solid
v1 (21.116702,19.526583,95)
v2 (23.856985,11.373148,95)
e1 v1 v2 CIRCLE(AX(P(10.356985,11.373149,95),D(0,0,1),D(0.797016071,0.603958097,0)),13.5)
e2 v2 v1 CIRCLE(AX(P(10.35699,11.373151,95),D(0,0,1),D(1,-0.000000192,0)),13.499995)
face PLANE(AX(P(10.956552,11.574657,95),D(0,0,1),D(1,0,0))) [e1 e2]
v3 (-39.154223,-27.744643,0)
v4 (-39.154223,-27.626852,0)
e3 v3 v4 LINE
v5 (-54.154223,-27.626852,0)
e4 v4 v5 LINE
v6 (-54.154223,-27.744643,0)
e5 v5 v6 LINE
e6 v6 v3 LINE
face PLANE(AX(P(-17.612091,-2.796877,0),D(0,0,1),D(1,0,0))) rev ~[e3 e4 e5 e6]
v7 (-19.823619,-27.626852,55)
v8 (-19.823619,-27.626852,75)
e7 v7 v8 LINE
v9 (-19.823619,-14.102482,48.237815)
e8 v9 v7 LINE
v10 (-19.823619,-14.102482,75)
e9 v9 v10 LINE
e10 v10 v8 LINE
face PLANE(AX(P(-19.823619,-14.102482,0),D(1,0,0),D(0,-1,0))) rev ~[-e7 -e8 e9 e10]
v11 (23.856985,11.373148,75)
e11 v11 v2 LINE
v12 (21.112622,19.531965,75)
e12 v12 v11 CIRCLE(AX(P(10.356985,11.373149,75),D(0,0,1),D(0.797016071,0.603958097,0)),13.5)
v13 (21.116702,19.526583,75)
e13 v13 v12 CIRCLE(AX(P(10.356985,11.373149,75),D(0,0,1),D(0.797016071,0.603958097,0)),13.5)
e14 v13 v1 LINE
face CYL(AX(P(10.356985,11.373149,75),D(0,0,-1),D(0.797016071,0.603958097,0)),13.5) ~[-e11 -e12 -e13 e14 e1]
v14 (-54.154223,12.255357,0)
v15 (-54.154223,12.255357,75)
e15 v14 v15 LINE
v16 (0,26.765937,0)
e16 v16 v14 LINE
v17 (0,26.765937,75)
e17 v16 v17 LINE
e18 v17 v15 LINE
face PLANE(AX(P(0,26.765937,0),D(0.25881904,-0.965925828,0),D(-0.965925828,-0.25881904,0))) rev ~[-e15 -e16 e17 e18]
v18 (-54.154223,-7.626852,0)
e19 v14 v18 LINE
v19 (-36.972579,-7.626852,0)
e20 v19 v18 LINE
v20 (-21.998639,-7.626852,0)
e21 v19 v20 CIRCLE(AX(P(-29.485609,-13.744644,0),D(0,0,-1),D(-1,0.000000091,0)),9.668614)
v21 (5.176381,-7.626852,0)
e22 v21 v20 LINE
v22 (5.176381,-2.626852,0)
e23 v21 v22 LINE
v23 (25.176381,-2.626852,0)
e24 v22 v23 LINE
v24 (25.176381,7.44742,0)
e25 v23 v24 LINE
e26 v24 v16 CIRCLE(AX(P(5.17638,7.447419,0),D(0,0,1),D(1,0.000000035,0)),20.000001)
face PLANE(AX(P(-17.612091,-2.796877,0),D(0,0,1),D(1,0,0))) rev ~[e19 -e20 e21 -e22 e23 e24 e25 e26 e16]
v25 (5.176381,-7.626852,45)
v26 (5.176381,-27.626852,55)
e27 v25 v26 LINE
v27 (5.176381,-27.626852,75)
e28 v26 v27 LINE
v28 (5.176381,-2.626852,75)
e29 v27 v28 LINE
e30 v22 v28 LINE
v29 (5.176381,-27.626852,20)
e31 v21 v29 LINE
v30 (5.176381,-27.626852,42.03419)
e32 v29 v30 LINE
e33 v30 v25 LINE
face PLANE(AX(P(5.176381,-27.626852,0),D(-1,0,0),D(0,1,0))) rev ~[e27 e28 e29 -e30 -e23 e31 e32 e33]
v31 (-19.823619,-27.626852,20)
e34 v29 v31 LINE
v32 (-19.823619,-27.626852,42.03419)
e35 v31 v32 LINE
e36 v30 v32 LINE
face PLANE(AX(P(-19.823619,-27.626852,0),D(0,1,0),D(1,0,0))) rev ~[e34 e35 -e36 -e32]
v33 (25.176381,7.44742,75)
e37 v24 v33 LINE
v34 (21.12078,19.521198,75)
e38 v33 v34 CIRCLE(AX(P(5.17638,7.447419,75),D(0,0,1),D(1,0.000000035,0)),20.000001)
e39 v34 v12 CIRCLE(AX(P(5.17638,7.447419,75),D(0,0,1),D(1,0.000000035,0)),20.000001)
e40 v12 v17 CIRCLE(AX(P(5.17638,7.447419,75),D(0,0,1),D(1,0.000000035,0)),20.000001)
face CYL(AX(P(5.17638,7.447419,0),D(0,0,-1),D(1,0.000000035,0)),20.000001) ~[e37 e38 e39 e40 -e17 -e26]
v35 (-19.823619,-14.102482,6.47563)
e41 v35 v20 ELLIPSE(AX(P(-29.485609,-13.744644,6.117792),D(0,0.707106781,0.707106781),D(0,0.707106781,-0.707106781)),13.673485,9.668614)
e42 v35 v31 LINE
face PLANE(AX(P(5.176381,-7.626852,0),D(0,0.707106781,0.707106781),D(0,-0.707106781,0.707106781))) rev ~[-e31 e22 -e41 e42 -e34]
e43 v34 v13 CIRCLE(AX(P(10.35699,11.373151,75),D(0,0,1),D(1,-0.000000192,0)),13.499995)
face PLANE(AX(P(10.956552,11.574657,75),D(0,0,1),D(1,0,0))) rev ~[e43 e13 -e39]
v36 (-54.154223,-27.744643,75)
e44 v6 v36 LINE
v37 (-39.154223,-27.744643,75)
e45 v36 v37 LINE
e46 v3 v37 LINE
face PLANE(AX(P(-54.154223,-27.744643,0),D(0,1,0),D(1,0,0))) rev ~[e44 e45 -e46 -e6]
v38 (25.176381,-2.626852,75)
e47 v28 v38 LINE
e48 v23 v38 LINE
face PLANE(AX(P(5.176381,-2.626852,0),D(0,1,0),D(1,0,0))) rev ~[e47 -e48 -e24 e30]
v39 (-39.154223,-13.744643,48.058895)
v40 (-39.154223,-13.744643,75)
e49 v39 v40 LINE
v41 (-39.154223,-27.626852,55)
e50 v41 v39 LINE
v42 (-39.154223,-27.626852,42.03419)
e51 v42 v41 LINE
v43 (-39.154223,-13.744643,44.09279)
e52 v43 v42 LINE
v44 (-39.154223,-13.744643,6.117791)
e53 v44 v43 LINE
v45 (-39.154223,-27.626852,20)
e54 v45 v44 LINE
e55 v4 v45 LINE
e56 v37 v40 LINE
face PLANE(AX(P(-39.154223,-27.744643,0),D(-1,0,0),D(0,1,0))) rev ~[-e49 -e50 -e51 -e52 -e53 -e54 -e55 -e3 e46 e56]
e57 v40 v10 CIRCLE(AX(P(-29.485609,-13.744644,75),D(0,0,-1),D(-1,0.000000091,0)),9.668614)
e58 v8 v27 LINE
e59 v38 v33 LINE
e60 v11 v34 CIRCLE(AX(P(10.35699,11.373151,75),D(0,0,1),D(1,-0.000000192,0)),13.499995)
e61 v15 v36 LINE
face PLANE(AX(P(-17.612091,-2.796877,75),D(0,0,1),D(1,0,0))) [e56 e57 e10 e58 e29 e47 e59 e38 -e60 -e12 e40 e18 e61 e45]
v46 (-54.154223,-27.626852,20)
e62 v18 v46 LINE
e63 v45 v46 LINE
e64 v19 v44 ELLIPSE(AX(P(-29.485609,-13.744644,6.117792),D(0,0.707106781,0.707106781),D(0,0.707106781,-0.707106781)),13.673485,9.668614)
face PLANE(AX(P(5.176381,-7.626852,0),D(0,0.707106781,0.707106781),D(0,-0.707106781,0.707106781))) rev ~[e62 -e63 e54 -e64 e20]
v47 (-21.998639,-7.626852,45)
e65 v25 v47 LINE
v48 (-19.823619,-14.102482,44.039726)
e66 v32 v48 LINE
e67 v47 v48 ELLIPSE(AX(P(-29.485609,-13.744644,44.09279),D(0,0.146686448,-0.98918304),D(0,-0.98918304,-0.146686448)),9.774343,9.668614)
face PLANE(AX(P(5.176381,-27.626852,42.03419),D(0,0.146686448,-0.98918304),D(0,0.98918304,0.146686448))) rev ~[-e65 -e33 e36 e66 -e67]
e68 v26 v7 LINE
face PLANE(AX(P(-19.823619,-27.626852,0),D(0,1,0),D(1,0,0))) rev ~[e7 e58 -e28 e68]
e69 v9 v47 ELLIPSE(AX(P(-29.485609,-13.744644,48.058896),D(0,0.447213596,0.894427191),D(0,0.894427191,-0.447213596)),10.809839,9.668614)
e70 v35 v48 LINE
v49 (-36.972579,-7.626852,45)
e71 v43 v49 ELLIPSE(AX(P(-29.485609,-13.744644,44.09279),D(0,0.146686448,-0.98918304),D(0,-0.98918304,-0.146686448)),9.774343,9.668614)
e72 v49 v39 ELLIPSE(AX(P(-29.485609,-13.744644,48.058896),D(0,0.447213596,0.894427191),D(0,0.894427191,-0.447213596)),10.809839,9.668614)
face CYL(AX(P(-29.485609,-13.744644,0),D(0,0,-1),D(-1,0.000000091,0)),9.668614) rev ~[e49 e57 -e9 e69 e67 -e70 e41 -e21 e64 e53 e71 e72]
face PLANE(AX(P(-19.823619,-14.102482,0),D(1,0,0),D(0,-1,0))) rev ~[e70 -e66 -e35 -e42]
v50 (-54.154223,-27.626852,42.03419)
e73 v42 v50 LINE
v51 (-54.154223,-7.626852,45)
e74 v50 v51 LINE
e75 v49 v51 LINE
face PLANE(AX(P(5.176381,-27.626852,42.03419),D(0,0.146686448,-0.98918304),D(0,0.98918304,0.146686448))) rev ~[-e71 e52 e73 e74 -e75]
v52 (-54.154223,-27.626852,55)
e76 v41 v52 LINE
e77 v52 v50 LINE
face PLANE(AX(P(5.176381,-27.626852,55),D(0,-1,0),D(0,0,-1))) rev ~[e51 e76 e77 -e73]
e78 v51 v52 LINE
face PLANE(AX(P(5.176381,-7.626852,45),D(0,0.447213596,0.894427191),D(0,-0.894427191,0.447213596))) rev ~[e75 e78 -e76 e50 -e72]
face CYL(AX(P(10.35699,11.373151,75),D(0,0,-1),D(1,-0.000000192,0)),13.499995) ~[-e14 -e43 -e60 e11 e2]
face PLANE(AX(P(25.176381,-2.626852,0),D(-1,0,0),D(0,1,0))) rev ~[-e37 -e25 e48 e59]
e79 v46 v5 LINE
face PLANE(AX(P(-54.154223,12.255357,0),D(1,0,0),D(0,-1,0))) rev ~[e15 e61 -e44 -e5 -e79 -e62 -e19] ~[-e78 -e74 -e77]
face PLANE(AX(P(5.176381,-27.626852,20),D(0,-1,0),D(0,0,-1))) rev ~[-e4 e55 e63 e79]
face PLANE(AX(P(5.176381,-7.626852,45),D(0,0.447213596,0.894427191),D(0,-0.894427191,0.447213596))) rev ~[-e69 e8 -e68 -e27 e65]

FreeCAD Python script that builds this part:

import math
import FreeCAD as App
import Part
import Sketcher
from FreeCAD import Vector
Q = App.Units.Quantity


def add_polygon(sketch, points):
    """Adds a closed chain of lines whose ends are joined by coincident constraints."""
    first, n = sketch.GeometryCount, len(points)
    for a, b in zip(points, points[1:] + points[:1]):
        sketch.addGeometry(Part.LineSegment(App.Vector(*a, 0), App.Vector(*b, 0)), False)
    for i in range(n):
        sketch.addConstraint(Sketcher.Constraint("Coincident", first + i, 2, first + (i + 1) % n, 1))

doc = App.newDocument("Part")
body = doc.addObject("PartDesign::Body", "Body")

sketch1 = body.newObject("Sketcher::SketchObject", "Sketch")
sketch1.AttachmentSupport = (doc.getObject("XY_Plane"), [""])
sketch1.MapMode = "FlatFace"
sketch1.addGeometry([
    Part.LineSegment(Vector(0, 27, 0), Vector(-54, 12, 0)),
    Part.LineSegment(Vector(-54, 12, 0), Vector(-54, -28, 0)),
    Part.LineSegment(Vector(-54, -28, 0), Vector(-39, -28, 0)),
    Part.LineSegment(Vector(-39, -28, 0), Vector(-39, -14, 0)),
    Part.ArcOfCircle(Part.Circle(Vector(-29, -14, 0), Vector(0, 0, 1), 10), math.radians(-2), math.radians(180)),
    Part.LineSegment(Vector(-20, -14, 0), Vector(-20, -28, 0)),
    Part.LineSegment(Vector(-20, -28, 0), Vector(5, -28, 0)),
    Part.LineSegment(Vector(5, -28, 0), Vector(5, -3, 0)),
    Part.LineSegment(Vector(5, -3, 0), Vector(25, -3, 0)),
    Part.LineSegment(Vector(25, -3, 0), Vector(25, 7, 0)),
    Part.ArcOfCircle(Part.Circle(Vector(5, 7, 0), Vector(0, 0, 1), 20), math.radians(0), math.radians(105)),
], False)
sketch1.addConstraint([
    Sketcher.Constraint("Coincident", 0, 2, 1, 1),
    Sketcher.Constraint("Coincident", 1, 2, 2, 1),
    Sketcher.Constraint("Coincident", 2, 2, 3, 1),
    Sketcher.Constraint("Tangent", 3, 2, 4, 2),
    Sketcher.Constraint("Coincident", 4, 1, 5, 1),
    Sketcher.Constraint("Coincident", 5, 2, 6, 1),
    Sketcher.Constraint("Coincident", 6, 2, 7, 1),
    Sketcher.Constraint("Coincident", 7, 2, 8, 1),
    Sketcher.Constraint("Coincident", 8, 2, 9, 1),
    Sketcher.Constraint("Tangent", 9, 2, 10, 1),
    Sketcher.Constraint("Tangent", 10, 2, 0, 1),
    Sketcher.Constraint("Vertical", 1),
    Sketcher.Constraint("Horizontal", 2),
    Sketcher.Constraint("Vertical", 3),
    Sketcher.Constraint("Vertical", 5),
    Sketcher.Constraint("Horizontal", 6),
    Sketcher.Constraint("Vertical", 7),
    Sketcher.Constraint("Horizontal", 8),
    Sketcher.Constraint("Vertical", 9),
    Sketcher.Constraint("PointOnObject", 10, 2, -2),
    Sketcher.Constraint("Vertical", 10, 3, 6, 2),
    Sketcher.Constraint("Equal", 6, 7),
    Sketcher.Constraint("Radius", 10, 20.000001),
    Sketcher.Constraint("DistanceX", 2, 1, 2, 2, 15.0),
    Sketcher.Constraint("DistanceX", 6, 1, 6, 2, 25.0),
    Sketcher.Constraint("DistanceY", 1, 2, 1, 1, 40.0),
    Sketcher.Constraint("DistanceY", 3, 1, 3, 2, 14.0),
    Sketcher.Constraint("Angle", 0, Q("-165 deg")),
    Sketcher.Constraint("Radius", 4, 9.668614),
    Sketcher.Constraint("DistanceY", 5, 2, 5, 1, 13.52437),
    Sketcher.Constraint("DistanceY", 4, 1, 10, 3, 21.549901),
    Sketcher.Constraint("DistanceY", -1, 1, 10, 3, 7.447419),
])
pad1 = body.newObject("PartDesign::Pad", "Pad")
pad1.Profile = sketch1
pad1.Length = 75

sketch2 = body.newObject("Sketcher::SketchObject", "Sketch001")
sketch2.AttachmentSupport = (doc.getObject("XY_Plane"), [""])
sketch2.MapMode = "FlatFace"
sketch2.AttachmentOffset = App.Placement(Vector(0, 0, 75), App.Rotation())
sketch2.addGeometry([
    Part.ArcOfCircle(Part.Circle(Vector(10, 11, 0), Vector(0, 0, 1), 13), math.radians(37), math.radians(360)),
    Part.ArcOfCircle(Part.Circle(Vector(10, 11, 0), Vector(0, 0, 1), 13), math.radians(0), math.radians(37)),
], False)
sketch2.addConstraint([
    Sketcher.Constraint("Tangent", 0, 1, 1, 2),
    Sketcher.Constraint("Coincident", 1, 1, 0, 2),
    Sketcher.Constraint("Horizontal", 0, 3, 1, 1),
    Sketcher.Constraint("Radius", 0, 13.5),
    Sketcher.Constraint("DistanceY", -1, 1, 0, 3, 11.373149),
    Sketcher.Constraint("DistanceX", -1, 1, 1, 3, 10.35699),
    Sketcher.Constraint("DistanceX", 1, 3, 0, 1, 10.759712),
])
pad2 = body.newObject("PartDesign::Pad", "Pad001")
pad2.Profile = sketch2
pad2.Length = 20

sketch3 = body.newObject("Sketcher::SketchObject", "Sketch002")
sketch3.AttachmentSupport = (doc.getObject("YZ_Plane"), [""])
sketch3.MapMode = "FlatFace"
sketch3.AttachmentOffset = App.Placement(Vector(0, 0, 5.176381), App.Rotation())
add_polygon(sketch3, [(-8, 0), (-28, 20), (-28, 0)])
add_polygon(sketch3, [(-8, 45), (-28, 55), (-28, 42)])
sketch3.addConstraint([
    Sketcher.Constraint("Vertical", 1),
    Sketcher.Constraint("Horizontal", 2),
    Sketcher.Constraint("Vertical", 4),
    Sketcher.Constraint("PointOnObject", 1, 2, -1),
    Sketcher.Constraint("Vertical", 1, 2, 3, 2),
    Sketcher.Constraint("Vertical", 2, 2, 5, 2),
    Sketcher.Constraint("Equal", 2, 1),
    Sketcher.Constraint("DistanceX", 2, 1, 2, 2, 20.0),
    Sketcher.Constraint("DistanceY", -1, 1, 3, 2, 55.0),
    Sketcher.Constraint("DistanceY", -1, 1, 5, 2, 45.0),
    Sketcher.Constraint("DistanceY", 4, 2, 4, 1, 12.96581),
    Sketcher.Constraint("DistanceX", 0, 2, -1, 1, 27.626852),
])
pocket1 = body.newObject("PartDesign::Pocket", "Pocket")
pocket1.Profile = sketch3
pocket1.Type = "ThroughAll"

doc.recompute()
